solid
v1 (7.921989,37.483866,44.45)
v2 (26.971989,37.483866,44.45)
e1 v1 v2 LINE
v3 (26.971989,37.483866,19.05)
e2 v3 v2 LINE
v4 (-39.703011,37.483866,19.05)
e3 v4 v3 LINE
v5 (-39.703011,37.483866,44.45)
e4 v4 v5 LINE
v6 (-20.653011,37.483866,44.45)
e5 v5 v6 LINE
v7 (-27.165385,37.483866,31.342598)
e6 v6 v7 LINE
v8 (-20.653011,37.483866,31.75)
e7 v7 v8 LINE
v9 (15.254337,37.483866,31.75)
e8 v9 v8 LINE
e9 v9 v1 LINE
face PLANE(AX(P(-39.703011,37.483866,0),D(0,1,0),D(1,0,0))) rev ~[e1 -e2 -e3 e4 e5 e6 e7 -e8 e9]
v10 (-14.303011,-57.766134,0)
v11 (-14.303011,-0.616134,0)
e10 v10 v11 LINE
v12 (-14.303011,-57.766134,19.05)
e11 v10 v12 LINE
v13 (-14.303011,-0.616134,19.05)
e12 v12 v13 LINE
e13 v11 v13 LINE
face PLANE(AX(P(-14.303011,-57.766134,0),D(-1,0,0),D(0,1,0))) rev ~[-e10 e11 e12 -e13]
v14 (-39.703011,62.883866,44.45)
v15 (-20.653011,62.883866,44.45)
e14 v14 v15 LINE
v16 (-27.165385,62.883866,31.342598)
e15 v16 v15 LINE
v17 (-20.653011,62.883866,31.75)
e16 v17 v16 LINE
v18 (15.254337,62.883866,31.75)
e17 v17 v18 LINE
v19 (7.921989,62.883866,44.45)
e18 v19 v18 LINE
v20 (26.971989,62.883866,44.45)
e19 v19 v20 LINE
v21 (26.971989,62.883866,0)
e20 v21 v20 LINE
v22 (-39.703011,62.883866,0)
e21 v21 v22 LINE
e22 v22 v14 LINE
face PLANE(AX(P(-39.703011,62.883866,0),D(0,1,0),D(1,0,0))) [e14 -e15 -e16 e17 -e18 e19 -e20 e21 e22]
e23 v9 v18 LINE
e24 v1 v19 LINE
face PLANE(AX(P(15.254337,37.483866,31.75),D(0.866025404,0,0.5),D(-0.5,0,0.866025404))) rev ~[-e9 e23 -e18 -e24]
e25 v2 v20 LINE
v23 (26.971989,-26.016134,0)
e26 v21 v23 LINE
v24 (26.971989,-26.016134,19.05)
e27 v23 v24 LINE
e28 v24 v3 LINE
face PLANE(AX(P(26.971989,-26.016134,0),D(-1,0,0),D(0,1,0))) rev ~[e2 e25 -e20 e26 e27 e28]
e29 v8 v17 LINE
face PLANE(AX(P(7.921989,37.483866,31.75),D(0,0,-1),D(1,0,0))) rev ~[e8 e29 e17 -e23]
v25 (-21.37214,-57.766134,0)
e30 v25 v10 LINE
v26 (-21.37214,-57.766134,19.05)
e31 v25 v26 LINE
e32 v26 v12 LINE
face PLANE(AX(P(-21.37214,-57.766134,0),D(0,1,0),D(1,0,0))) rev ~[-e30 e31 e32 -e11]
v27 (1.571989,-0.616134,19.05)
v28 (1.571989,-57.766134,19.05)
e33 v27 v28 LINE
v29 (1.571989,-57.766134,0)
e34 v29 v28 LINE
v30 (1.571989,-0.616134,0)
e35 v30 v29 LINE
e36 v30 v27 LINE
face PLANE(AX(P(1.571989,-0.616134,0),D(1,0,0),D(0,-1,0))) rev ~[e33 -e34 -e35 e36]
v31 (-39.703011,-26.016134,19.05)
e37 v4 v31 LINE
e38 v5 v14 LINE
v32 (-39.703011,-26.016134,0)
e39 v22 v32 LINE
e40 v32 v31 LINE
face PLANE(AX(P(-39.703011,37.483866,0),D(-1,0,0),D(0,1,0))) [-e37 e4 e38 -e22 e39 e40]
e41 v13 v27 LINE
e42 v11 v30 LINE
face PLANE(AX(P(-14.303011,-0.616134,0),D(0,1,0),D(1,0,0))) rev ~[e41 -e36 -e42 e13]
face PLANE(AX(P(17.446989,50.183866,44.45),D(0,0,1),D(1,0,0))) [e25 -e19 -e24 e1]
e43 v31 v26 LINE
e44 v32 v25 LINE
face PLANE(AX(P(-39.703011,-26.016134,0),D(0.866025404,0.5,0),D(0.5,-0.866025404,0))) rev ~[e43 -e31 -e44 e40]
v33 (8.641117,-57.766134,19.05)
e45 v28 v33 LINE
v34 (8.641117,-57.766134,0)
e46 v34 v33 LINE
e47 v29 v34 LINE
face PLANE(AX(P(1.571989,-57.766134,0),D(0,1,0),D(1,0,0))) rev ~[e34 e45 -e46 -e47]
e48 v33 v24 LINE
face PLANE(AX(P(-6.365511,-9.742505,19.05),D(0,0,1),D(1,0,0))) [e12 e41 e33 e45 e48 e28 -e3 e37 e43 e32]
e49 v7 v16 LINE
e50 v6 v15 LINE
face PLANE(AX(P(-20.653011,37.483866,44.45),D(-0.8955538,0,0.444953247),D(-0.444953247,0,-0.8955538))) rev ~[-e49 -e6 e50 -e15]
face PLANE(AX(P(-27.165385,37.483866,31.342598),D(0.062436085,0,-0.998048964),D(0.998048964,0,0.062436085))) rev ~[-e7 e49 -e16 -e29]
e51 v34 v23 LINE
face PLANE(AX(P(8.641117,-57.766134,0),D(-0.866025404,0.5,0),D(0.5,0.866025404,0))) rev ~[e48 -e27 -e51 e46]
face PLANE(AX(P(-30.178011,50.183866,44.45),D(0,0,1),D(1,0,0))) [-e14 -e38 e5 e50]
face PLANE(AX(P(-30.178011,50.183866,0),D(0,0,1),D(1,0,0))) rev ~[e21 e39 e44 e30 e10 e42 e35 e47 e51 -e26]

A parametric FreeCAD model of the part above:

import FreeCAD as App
import Part
import Sketcher
Q = App.Units.Quantity


def add_polygon(sketch, points):
    """Adds a closed chain of lines whose ends are joined by coincident constraints."""
    first, n = sketch.GeometryCount, len(points)
    for a, b in zip(points, points[1:] + points[:1]):
        sketch.addGeometry(Part.LineSegment(App.Vector(*a, 0), App.Vector(*b, 0)), False)
    for i in range(n):
        sketch.addConstraint(Sketcher.Constraint("Coincident", first + i, 2, first + (i + 1) % n, 1))

doc = App.newDocument("Part")
params = doc.addObject("Spreadsheet::Sheet", "Params")
for row, (alias, value) in enumerate([
    ("sketch1_height", "2.5 in"),
    ("sketch1_height2", "2.25 in"),
    ("sketch1_width", "0.625 in"),
    ("pad1_length", "0.75 in"),
    ("sketch2_height", "1 in"),
    ("sketch2_width", "1.125 in"),
    ("pad2_length", "1.25 in"),
    ("sketch3_height", "1 in"),
    ("sketch3_width", "0.75 in"),
    ("pad3_length", "1.75 in"),
    ("sketch4_height", "0.5 in"),
], start=1):
    params.set(f"A{row}", alias)
    params.set(f"B{row}", "=" + value)
    params.setAlias(f"B{row}", alias)

body = doc.addObject("PartDesign::Body", "Body")

sketch1 = body.newObject("Sketcher::SketchObject", "Sketch")
sketch1.AttachmentSupport = (doc.getObject("XY_Plane"), [""])
sketch1.MapMode = "FlatFace"
add_polygon(sketch1, [(-40, 37), (-40, -26), (-21, -58), (-14, -58), (-14, -1), (2, -1), (2, -58), (9, -58), (27, -26), (27, 37)])
sketch1.addConstraint([
    Sketcher.Constraint("Vertical", 0),
    Sketcher.Constraint("Horizontal", 2),
    Sketcher.Constraint("Vertical", 3),
    Sketcher.Constraint("Horizontal", 4),
    Sketcher.Constraint("Vertical", 5),
    Sketcher.Constraint("Horizontal", 6),
    Sketcher.Constraint("Vertical", 8),
    Sketcher.Constraint("Horizontal", 9),
    Sketcher.Constraint("Horizontal", 2, 2, 5, 2),
    Sketcher.Constraint("Horizontal", 0, 2, 7, 2),
    Sketcher.Constraint("Equal", 2, 6),
    Sketcher.Constraint("Equal", 1, 7),
    Sketcher.Constraint("DistanceY", 0, 2, 0, 1, Q("2.5 in")),
    Sketcher.Constraint("Angle", 1, Q("-60 deg")),
    Sketcher.Constraint("DistanceX", 0, 2, 2, 2, Q("1 in")),
    Sketcher.Constraint("DistanceY", 0, 2, 3, 2, Q("1 in")),
    Sketcher.Constraint("DistanceY", 3, 1, 3, 2, Q("2.25 in")),
    Sketcher.Constraint("DistanceX", 4, 1, 4, 2, Q("0.625 in")),
    Sketcher.Constraint("DistanceX", 0, 2, -1, 1, Q("39.703011 mm")),
    Sketcher.Constraint("DistanceY", 0, 2, -1, 1, Q("26.016134 mm")),
])
sketch1.setExpression("Constraints[22]", "Params.sketch1_height")
sketch1.setExpression("Constraints[26]", "Params.sketch1_height2")
sketch1.setExpression("Constraints[27]", "Params.sketch1_width")
pad1 = body.newObject("PartDesign::Pad", "Pad")
pad1.Profile = sketch1
pad1.setExpression("Length", "Params.pad1_length")

sketch2 = body.newObject("Sketcher::SketchObject", "Sketch001")
sketch2.AttachmentSupport = (doc.getObject("XY_Plane"), [""])
sketch2.MapMode = "FlatFace"
add_polygon(sketch2, [(-21, 63), (-21, 37), (8, 37), (8, 63)])
sketch2.addConstraint([
    Sketcher.Constraint("Vertical", 0),
    Sketcher.Constraint("Horizontal", 1),
    Sketcher.Constraint("Vertical", 2),
    Sketcher.Constraint("Horizontal", 3),
    Sketcher.Constraint("DistanceY", 0, 2, 0, 1, Q("1 in")),
    Sketcher.Constraint("DistanceX", 1, 1, 1, 2, Q("1.125 in")),
    Sketcher.Constraint("DistanceX", 0, 2, -1, 1, Q("20.653011 mm")),
    Sketcher.Constraint("DistanceY", -1, 1, 0, 2, Q("37.483866 mm")),
])
sketch2.setExpression("Constraints[8]", "Params.sketch2_height")
sketch2.setExpression("Constraints[9]", "Params.sketch2_width")
pad2 = body.newObject("PartDesign::Pad", "Pad001")
pad2.Profile = sketch2
pad2.setExpression("Length", "Params.pad2_length")

sketch3 = body.newObject("Sketcher::SketchObject", "Sketch002")
sketch3.AttachmentSupport = (doc.getObject("XY_Plane"), [""])
sketch3.MapMode = "FlatFace"
add_polygon(sketch3, [(-40, 63), (-40, 37), (-21, 37), (-21, 63)])
add_polygon(sketch3, [(8, 63), (8, 37), (27, 37), (27, 63)])
sketch3.addConstraint([
    Sketcher.Constraint("Vertical", 0),
    Sketcher.Constraint("Horizontal", 1),
    Sketcher.Constraint("Vertical", 2),
    Sketcher.Constraint("Horizontal", 3),
    Sketcher.Constraint("Vertical", 4),
    Sketcher.Constraint("Horizontal", 5),
    Sketcher.Constraint("Vertical", 6),
    Sketcher.Constraint("Horizontal", 7),
    Sketcher.Constraint("Horizontal", 1, 2, 4, 2),
    Sketcher.Constraint("Horizontal", 3, 2, 6, 2),
    Sketcher.Constraint("Equal", 3, 5),
    Sketcher.Constraint("DistanceY", 0, 2, 0, 1, Q("1 in")),
    Sketcher.Constraint("DistanceX", 1, 1, 1, 2, Q("0.75 in")),
    Sketcher.Constraint("DistanceX", 1, 2, 4, 2, Q("1.125 in")),
    Sketcher.Constraint("DistanceX", 0, 2, -1, 1, Q("39.703011 mm")),
    Sketcher.Constraint("DistanceY", -1, 1, 0, 2, Q("37.483866 mm")),
])
sketch3.setExpression("Constraints[19]", "Params.sketch3_height")
sketch3.setExpression("Constraints[20]", "Params.sketch3_width")
pad3 = body.newObject("PartDesign::Pad", "Pad002")
pad3.Profile = sketch3
pad3.setExpression("Length", "Params.pad3_length")

sketch4 = body.newObject("Sketcher::SketchObject", "Sketch003")
sketch4.AttachmentSupport = (doc.getObject("XZ_Plane"), [""])
sketch4.MapMode = "FlatFace"
sketch4.AttachmentOffset = App.Placement(App.Vector(0, 0, -37.483866), App.Rotation())
add_polygon(sketch4, [(-21, 32), (-21, 44), (-27, 31)])
add_polygon(sketch4, [(8, 44), (8, 32), (15, 32)])
sketch4.addConstraint([
    Sketcher.Constraint("Vertical", 0),
    Sketcher.Constraint("Vertical", 3),
    Sketcher.Constraint("Horizontal", 4),
    Sketcher.Constraint("Horizontal", 2, 2, 3, 2),
    Sketcher.Constraint("Horizontal", 0, 2, 5, 2),
    Sketcher.Constraint("DistanceY", 0, 1, 0, 2, Q("0.5 in")),
    Sketcher.Constraint("Angle", 5, Q("120 deg")),
    Sketcher.Constraint("DistanceY", -1, 1, 0, 2, Q("1.75 in")),
    Sketcher.Constraint("DistanceX", 2, 2, 3, 2, Q("1.125 in")),
    Sketcher.Constraint("DistanceY", -1, 1, 1, 2, Q("31.342598 mm")),
    Sketcher.Constraint("DistanceX", 0, 2, -1, 1, Q("20.653011 mm")),
    Sketcher.Constraint("Distance", 1, Q("14.636085 mm")),
])
sketch4.setExpression("Constraints[11]", "Params.sketch4_height")
pocket1 = body.newObject("PartDesign::Pocket", "Pocket")
pocket1.Profile = sketch4
pocket1.Type = "ThroughAll"

doc.recompute()
